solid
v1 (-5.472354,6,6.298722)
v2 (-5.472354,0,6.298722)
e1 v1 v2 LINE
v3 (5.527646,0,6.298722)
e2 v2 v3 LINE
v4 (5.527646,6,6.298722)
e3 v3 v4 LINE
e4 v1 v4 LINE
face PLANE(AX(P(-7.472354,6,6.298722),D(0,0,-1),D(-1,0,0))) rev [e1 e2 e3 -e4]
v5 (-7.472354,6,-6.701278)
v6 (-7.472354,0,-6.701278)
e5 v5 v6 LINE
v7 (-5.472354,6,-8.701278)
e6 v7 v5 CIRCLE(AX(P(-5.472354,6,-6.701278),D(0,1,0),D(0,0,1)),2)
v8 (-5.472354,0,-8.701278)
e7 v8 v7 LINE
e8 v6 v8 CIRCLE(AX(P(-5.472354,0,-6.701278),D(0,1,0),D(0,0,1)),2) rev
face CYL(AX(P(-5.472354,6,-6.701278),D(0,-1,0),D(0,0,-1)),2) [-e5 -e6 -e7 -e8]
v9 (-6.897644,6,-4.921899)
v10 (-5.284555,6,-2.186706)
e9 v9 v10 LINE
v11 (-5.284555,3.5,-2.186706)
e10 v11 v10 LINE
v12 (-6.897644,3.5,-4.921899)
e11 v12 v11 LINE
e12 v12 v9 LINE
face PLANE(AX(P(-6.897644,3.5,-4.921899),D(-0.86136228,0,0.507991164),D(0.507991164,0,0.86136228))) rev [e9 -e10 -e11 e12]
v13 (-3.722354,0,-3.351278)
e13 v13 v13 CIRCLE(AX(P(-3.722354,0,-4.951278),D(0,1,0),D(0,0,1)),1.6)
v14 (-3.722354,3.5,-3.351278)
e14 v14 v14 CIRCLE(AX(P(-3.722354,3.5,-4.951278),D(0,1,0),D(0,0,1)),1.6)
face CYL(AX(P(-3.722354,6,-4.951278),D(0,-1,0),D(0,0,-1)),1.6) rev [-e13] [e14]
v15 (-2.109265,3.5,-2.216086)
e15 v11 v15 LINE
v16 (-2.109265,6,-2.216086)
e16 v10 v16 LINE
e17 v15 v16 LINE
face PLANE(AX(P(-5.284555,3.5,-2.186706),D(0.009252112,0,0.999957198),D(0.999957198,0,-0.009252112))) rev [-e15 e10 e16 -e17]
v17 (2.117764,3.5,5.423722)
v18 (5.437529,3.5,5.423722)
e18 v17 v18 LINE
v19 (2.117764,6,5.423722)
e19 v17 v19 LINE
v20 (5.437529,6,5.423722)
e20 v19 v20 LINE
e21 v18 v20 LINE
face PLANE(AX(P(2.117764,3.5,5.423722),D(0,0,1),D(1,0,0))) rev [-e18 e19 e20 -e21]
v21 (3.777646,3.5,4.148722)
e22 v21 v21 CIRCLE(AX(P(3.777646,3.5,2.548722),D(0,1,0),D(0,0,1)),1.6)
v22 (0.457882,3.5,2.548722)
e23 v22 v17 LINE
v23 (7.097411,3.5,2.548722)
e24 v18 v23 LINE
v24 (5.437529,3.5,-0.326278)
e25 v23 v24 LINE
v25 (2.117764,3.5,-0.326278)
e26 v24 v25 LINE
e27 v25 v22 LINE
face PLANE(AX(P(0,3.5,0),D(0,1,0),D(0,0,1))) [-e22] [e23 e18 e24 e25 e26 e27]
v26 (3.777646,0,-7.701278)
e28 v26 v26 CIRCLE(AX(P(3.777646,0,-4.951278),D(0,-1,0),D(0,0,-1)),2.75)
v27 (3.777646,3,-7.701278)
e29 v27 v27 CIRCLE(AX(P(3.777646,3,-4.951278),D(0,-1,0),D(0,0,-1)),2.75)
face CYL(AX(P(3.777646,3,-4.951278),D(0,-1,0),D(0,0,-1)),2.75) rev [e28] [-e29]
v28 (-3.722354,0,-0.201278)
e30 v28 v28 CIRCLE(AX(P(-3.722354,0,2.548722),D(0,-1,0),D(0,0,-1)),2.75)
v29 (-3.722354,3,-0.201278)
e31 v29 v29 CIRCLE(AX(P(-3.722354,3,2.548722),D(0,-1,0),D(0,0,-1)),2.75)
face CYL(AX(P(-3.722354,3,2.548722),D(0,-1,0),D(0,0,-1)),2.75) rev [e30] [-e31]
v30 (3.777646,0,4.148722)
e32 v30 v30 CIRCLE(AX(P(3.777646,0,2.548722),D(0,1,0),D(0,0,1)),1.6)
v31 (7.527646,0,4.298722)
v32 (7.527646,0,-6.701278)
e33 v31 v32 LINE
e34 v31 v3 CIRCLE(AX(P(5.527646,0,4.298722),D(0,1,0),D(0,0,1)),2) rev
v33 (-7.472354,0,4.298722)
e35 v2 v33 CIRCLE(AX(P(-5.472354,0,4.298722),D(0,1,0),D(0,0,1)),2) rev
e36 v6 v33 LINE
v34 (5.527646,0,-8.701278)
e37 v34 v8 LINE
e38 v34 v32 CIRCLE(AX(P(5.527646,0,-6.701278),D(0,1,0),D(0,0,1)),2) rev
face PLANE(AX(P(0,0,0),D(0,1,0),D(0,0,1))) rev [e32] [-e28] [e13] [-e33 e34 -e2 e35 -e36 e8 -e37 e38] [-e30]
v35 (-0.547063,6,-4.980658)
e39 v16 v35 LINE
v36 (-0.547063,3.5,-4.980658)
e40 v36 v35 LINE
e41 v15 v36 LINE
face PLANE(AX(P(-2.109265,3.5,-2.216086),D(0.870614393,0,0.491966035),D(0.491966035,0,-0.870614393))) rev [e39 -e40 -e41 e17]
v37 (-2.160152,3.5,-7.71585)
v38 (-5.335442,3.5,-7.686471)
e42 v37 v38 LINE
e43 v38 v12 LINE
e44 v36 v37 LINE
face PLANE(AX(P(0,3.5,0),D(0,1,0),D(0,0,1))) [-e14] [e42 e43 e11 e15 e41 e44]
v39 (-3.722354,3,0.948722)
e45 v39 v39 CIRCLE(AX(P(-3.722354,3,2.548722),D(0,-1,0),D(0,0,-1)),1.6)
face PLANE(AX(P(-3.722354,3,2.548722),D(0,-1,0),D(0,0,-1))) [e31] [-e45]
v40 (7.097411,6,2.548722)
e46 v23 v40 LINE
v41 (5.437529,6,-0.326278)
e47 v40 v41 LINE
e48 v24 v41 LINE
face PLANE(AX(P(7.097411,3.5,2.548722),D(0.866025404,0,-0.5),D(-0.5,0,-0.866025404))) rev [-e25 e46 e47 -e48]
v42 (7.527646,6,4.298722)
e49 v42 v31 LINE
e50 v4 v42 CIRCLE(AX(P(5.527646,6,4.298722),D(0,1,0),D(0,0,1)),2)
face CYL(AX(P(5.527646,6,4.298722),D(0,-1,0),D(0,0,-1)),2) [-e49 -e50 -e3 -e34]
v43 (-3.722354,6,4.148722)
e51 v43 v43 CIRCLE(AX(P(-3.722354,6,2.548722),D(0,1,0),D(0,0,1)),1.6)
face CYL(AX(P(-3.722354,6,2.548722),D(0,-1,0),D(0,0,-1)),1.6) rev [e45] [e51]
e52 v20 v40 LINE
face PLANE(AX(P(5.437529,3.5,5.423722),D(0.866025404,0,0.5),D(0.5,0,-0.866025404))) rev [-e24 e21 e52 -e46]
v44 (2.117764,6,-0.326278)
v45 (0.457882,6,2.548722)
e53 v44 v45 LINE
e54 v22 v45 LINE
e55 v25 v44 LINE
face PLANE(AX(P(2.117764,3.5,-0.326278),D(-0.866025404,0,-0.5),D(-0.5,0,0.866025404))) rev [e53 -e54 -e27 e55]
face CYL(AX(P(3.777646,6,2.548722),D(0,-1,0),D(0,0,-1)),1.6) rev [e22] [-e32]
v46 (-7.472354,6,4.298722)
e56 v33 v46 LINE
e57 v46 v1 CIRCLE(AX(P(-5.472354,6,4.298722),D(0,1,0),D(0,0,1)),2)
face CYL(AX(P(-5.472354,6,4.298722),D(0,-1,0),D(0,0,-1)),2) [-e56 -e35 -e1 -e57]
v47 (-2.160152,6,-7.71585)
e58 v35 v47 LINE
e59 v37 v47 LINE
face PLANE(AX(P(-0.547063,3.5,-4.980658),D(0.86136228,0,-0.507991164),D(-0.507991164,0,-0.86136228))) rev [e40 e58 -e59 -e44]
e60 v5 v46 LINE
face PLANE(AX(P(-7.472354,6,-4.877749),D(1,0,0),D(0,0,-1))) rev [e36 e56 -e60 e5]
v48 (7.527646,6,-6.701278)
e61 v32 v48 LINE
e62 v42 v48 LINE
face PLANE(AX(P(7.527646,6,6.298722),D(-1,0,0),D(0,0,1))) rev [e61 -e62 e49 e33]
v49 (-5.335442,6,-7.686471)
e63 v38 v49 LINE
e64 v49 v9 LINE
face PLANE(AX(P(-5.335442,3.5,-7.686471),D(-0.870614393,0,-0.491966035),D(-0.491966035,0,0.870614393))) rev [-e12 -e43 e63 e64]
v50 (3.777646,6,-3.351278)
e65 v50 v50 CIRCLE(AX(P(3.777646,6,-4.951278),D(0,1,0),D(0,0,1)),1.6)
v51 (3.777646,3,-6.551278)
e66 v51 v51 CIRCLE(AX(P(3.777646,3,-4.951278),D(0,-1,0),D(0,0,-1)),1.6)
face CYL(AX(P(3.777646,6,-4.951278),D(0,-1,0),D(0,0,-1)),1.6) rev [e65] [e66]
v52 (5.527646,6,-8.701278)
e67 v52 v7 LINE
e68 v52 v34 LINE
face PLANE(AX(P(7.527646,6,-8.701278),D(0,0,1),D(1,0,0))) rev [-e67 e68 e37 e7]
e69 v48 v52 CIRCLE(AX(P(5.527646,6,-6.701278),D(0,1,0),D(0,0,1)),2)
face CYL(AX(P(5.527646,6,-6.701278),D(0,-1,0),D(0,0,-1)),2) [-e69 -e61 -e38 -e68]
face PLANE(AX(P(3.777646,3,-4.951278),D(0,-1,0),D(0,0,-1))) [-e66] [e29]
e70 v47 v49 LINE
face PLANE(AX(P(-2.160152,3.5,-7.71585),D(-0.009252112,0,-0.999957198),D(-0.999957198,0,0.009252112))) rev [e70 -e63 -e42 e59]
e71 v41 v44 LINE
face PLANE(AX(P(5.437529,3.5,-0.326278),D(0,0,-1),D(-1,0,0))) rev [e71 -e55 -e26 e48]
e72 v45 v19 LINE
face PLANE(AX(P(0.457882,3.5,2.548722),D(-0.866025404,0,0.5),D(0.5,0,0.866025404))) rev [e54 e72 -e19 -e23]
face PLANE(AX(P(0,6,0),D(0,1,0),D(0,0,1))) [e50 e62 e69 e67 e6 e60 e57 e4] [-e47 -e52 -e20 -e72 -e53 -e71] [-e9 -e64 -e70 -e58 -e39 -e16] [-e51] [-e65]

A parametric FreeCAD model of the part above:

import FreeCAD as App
import Part
import Sketcher

V = App.Vector
Q = App.Units.Quantity


def edges_at(feature, points):
    """Names of the edges that pass closest to the given points."""
    edges = feature.Shape.Edges
    near = lambda p: min(range(len(edges)), key=lambda i: edges[i].distToShape(Part.Vertex(*p))[0])
    return sorted({f"Edge{near(p) + 1}" for p in points})

doc = App.newDocument("Part")
params = doc.addObject("Spreadsheet::Sheet", "Params")
for row, (alias, value) in enumerate([
    ("sketch1_diameter", "3.2 mm"),
    ("sketch1_width", "15 mm"),
    ("pad1_length", "6 mm"),
    ("pocket1_length", "2.5 mm"),
    ("sketch3_diameter", "5.5 mm"),
    ("pocket2_length", "3 mm"),
    ("fillet_radius", "2 mm"),
], start=1):
    params.set(f"A{row}", alias)
    params.set(f"B{row}", "=" + value)
    params.setAlias(f"B{row}", alias)

body = doc.addObject("PartDesign::Body", "Body")

sketch1 = body.newObject("Sketcher::SketchObject", "Sketch")
sketch1.AttachmentSupport = (doc.getObject("XZ_Plane"), [""])
sketch1.MapMode = "FlatFace"
sketch1.addGeometry(Part.LineSegment(V(-7.5, 6.3, 0), V(7.5, 6.3, 0)), False)
sketch1.addGeometry(Part.LineSegment(V(7.5, 6.3, 0), V(7.5, -8.7, 0)), False)
sketch1.addGeometry(Part.LineSegment(V(7.5, -8.7, 0), V(-7.5, -8.7, 0)), False)
sketch1.addGeometry(Part.LineSegment(V(-7.5, -8.7, 0), V(-7.5, 6.3, 0)), False)
sketch1.addGeometry(Part.Circle(V(-3.7, 2.5, 0), V(0, 0, 1), 1.6), False)
sketch1.addGeometry(Part.Circle(V(3.8, 2.5, 0), V(0, 0, 1), 1.6), False)
sketch1.addGeometry(Part.Circle(V(-3.7, -5, 0), V(0, 0, 1), 1.6), False)
sketch1.addGeometry(Part.Circle(V(3.8, -5, 0), V(0, 0, 1), 1.6), False)
sketch1.addConstraint(Sketcher.Constraint("Coincident", 0, 2, 1, 1))
sketch1.addConstraint(Sketcher.Constraint("Coincident", 1, 2, 2, 1))
sketch1.addConstraint(Sketcher.Constraint("Coincident", 2, 2, 3, 1))
sketch1.addConstraint(Sketcher.Constraint("Coincident", 3, 2, 0, 1))
sketch1.addConstraint(Sketcher.Constraint("Horizontal", 0))
sketch1.addConstraint(Sketcher.Constraint("Vertical", 1))
sketch1.addConstraint(Sketcher.Constraint("Horizontal", 2))
sketch1.addConstraint(Sketcher.Constraint("Vertical", 3))
sketch1.addConstraint(Sketcher.Constraint("Equal", 4, 5))
sketch1.addConstraint(Sketcher.Constraint("Equal", 5, 6))
sketch1.addConstraint(Sketcher.Constraint("Equal", 6, 7))
sketch1.addConstraint(Sketcher.Constraint("Horizontal", 4, 3, 5, 3))
sketch1.addConstraint(Sketcher.Constraint("Horizontal", 6, 3, 7, 3))
sketch1.addConstraint(Sketcher.Constraint("Vertical", 4, 3, 6, 3))
sketch1.addConstraint(Sketcher.Constraint("Vertical", 5, 3, 7, 3))
sketch1.addConstraint(Sketcher.Constraint("Equal", 2, 1))
sketch1.addConstraint(Sketcher.Constraint("Diameter", 4, Q("3.2 mm")))
sketch1.addConstraint(Sketcher.Constraint("DistanceX", 0, 1, 0, 2, Q("15 mm")))
sketch1.addConstraint(Sketcher.Constraint("DistanceX", 4, 3, 5, 3, Q("7.5 mm")))
sketch1.addConstraint(Sketcher.Constraint("DistanceY", 6, 3, 4, 3, Q("7.5 mm")))
sketch1.addConstraint(Sketcher.Constraint("DistanceX", 5, 3, 0, 2, Q("3.75 mm")))
sketch1.addConstraint(Sketcher.Constraint("DistanceY", 5, 3, 0, 2, Q("3.75 mm")))
sketch1.addConstraint(Sketcher.Constraint("DistanceY", -1, 1, 4, 3, Q("2.548722 mm")))
sketch1.addConstraint(Sketcher.Constraint("DistanceX", 4, 3, -1, 1, Q("3.722354 mm")))
sketch1.setExpression("Constraints[16]", "Params.sketch1_diameter")
sketch1.setExpression("Constraints[17]", "Params.sketch1_width")
pad1 = body.newObject("PartDesign::Pad", "Pad")
pad1.Profile = sketch1
pad1.setExpression("Length", "Params.pad1_length")
pad1.Reversed = True

sketch2 = body.newObject("Sketcher::SketchObject", "Sketch001")
sketch2.AttachmentSupport = (doc.getObject("XZ_Plane"), [""])
sketch2.MapMode = "FlatFace"
sketch2.AttachmentOffset = App.Placement(V(0, 0, -6), App.Rotation())
sketch2.addGeometry(Part.LineSegment(V(-2.1, -2.2, 0), V(-0.5, -5, 0)), False)
sketch2.addGeometry(Part.LineSegment(V(-0.5, -5, 0), V(-2.2, -7.7, 0)), False)
sketch2.addGeometry(Part.LineSegment(V(-2.2, -7.7, 0), V(-5.3, -7.7, 0)), False)
sketch2.addGeometry(Part.LineSegment(V(-5.3, -7.7, 0), V(-6.9, -4.9, 0)), False)
sketch2.addGeometry(Part.LineSegment(V(-6.9, -4.9, 0), V(-5.3, -2.2, 0)), False)
sketch2.addGeometry(Part.LineSegment(V(-5.3, -2.2, 0), V(-2.1, -2.2, 0)), False)
sketch2.addGeometry(Part.LineSegment(V(7.1, 2.5, 0), V(5.4, -0.3, 0)), False)
sketch2.addGeometry(Part.LineSegment(V(5.4, -0.3, 0), V(2.1, -0.3, 0)), False)
sketch2.addGeometry(Part.LineSegment(V(2.1, -0.3, 0), V(0.5, 2.5, 0)), False)
sketch2.addGeometry(Part.LineSegment(V(0.5, 2.5, 0), V(2.1, 5.4, 0)), False)
sketch2.addGeometry(Part.LineSegment(V(2.1, 5.4, 0), V(5.4, 5.4, 0)), False)
sketch2.addGeometry(Part.LineSegment(V(5.4, 5.4, 0), V(7.1, 2.5, 0)), False)
sketch2.addConstraint(Sketcher.Constraint("Coincident", 0, 2, 1, 1))
sketch2.addConstraint(Sketcher.Constraint("Coincident", 1, 2, 2, 1))
sketch2.addConstraint(Sketcher.Constraint("Coincident", 2, 2, 3, 1))
sketch2.addConstraint(Sketcher.Constraint("Coincident", 3, 2, 4, 1))
sketch2.addConstraint(Sketcher.Constraint("Coincident", 4, 2, 5, 1))
sketch2.addConstraint(Sketcher.Constraint("Coincident", 5, 2, 0, 1))
sketch2.addConstraint(Sketcher.Constraint("Coincident", 6, 2, 7, 1))
sketch2.addConstraint(Sketcher.Constraint("Coincident", 7, 2, 8, 1))
sketch2.addConstraint(Sketcher.Constraint("Coincident", 8, 2, 9, 1))
sketch2.addConstraint(Sketcher.Constraint("Coincident", 9, 2, 10, 1))
sketch2.addConstraint(Sketcher.Constraint("Coincident", 10, 2, 11, 1))
sketch2.addConstraint(Sketcher.Constraint("Coincident", 11, 2, 6, 1))
sketch2.addConstraint(Sketcher.Constraint("Horizontal", 7))
sketch2.addConstraint(Sketcher.Constraint("Horizontal", 10))
sketch2.addConstraint(Sketcher.Constraint("Parallel", 0, 3))
sketch2.addConstraint(Sketcher.Constraint("Parallel", 1, 4))
sketch2.addConstraint(Sketcher.Constraint("Parallel", 2, 5))
sketch2.addConstraint(Sketcher.Constraint("Parallel", 6, 9))
sketch2.addConstraint(Sketcher.Constraint("Parallel", 8, 11))
sketch2.addConstraint(Sketcher.Constraint("Horizontal", 8, 2, 11, 2))
sketch2.addConstraint(Sketcher.Constraint("Vertical", 7, 2, 9, 2))
sketch2.addConstraint(Sketcher.Constraint("Vertical", 6, 2, 10, 2))
sketch2.addConstraint(Sketcher.Constraint("Equal", 0, 1))
sketch2.addConstraint(Sketcher.Constraint("Equal", 1, 2))
sketch2.addConstraint(Sketcher.Constraint("Equal", 2, 3))
sketch2.addConstraint(Sketcher.Constraint("Angle", 6, Q("-120 deg")))
sketch2.addConstraint(Sketcher.Constraint("DistanceY", 7, 2, 9, 2, Q("5.75 mm")))
sketch2.addConstraint(Sketcher.Constraint("DistanceY", 3, 2, -1, 1, Q("4.921899 mm")))
sketch2.addConstraint(Sketcher.Constraint("DistanceX", 3, 2, 2, 2, Q("1.562202 mm")))
sketch2.addConstraint(Sketcher.Constraint("DistanceX", 7, 2, 7, 1, Q("3.319764 mm")))
sketch2.addConstraint(Sketcher.Constraint("DistanceX", 1, 2, -1, 1, Q("2.160152 mm")))
sketch2.addConstraint(Sketcher.Constraint("DistanceY", 1, 2, -1, 1, Q("7.71585 mm")))
sketch2.addConstraint(Sketcher.Constraint("DistanceY", 2, 2, -1, 1, Q("7.686471 mm")))
sketch2.addConstraint(Sketcher.Constraint("DistanceX", -1, 1, 6, 2, Q("5.437529 mm")))
sketch2.addConstraint(Sketcher.Constraint("DistanceY", 6, 2, -1, 1, Q("0.326278 mm")))
sketch2.addConstraint(Sketcher.Constraint("DistanceX", 1, 2, 0, 2, Q("1.613089 mm")))
pocket1 = body.newObject("PartDesign::Pocket", "Pocket")
pocket1.Profile = sketch2
pocket1.setExpression("Length", "Params.pocket1_length")
pocket1.Reversed = True

sketch3 = body.newObject("Sketcher::SketchObject", "Sketch002")
sketch3.AttachmentSupport = (doc.getObject("XZ_Plane"), [""])
sketch3.MapMode = "FlatFace"
sketch3.addGeometry(Part.Circle(V(3.8, -5, 0), V(0, 0, 1), 2.8), False)
sketch3.addGeometry(Part.Circle(V(-3.7, 2.5, 0), V(0, 0, 1), 2.8), False)
sketch3.addConstraint(Sketcher.Constraint("Equal", 0, 1))
sketch3.addConstraint(Sketcher.Constraint("Diameter", 0, Q("5.5 mm")))
sketch3.addConstraint(Sketcher.Constraint("DistanceX", 1, 3, 0, 3, Q("7.5 mm")))
sketch3.addConstraint(Sketcher.Constraint("DistanceY", 0, 3, 1, 3, Q("7.5 mm")))
sketch3.addConstraint(Sketcher.Constraint("DistanceY", 0, 3, -1, 1, Q("4.951278 mm")))
sketch3.addConstraint(Sketcher.Constraint("DistanceX", -1, 1, 0, 3, Q("3.777646 mm")))
sketch3.setExpression("Constraints[1]", "Params.sketch3_diameter")
pocket2 = body.newObject("PartDesign::Pocket", "Pocket001")
pocket2.Profile = sketch3
pocket2.setExpression("Length", "Params.pocket2_length")
doc.recompute()

fillet = body.newObject("PartDesign::Fillet", "Fillet")
fillet.Base = (pocket2, edges_at(pocket2, [
    (-7.472, 3, -8.701),
    (7.528, 3, -8.701),
    (7.528, 3, 6.299),
    (-7.472, 3, 6.299),
]))
fillet.setExpression("Radius", "Params.fillet_radius")

doc.recompute()
